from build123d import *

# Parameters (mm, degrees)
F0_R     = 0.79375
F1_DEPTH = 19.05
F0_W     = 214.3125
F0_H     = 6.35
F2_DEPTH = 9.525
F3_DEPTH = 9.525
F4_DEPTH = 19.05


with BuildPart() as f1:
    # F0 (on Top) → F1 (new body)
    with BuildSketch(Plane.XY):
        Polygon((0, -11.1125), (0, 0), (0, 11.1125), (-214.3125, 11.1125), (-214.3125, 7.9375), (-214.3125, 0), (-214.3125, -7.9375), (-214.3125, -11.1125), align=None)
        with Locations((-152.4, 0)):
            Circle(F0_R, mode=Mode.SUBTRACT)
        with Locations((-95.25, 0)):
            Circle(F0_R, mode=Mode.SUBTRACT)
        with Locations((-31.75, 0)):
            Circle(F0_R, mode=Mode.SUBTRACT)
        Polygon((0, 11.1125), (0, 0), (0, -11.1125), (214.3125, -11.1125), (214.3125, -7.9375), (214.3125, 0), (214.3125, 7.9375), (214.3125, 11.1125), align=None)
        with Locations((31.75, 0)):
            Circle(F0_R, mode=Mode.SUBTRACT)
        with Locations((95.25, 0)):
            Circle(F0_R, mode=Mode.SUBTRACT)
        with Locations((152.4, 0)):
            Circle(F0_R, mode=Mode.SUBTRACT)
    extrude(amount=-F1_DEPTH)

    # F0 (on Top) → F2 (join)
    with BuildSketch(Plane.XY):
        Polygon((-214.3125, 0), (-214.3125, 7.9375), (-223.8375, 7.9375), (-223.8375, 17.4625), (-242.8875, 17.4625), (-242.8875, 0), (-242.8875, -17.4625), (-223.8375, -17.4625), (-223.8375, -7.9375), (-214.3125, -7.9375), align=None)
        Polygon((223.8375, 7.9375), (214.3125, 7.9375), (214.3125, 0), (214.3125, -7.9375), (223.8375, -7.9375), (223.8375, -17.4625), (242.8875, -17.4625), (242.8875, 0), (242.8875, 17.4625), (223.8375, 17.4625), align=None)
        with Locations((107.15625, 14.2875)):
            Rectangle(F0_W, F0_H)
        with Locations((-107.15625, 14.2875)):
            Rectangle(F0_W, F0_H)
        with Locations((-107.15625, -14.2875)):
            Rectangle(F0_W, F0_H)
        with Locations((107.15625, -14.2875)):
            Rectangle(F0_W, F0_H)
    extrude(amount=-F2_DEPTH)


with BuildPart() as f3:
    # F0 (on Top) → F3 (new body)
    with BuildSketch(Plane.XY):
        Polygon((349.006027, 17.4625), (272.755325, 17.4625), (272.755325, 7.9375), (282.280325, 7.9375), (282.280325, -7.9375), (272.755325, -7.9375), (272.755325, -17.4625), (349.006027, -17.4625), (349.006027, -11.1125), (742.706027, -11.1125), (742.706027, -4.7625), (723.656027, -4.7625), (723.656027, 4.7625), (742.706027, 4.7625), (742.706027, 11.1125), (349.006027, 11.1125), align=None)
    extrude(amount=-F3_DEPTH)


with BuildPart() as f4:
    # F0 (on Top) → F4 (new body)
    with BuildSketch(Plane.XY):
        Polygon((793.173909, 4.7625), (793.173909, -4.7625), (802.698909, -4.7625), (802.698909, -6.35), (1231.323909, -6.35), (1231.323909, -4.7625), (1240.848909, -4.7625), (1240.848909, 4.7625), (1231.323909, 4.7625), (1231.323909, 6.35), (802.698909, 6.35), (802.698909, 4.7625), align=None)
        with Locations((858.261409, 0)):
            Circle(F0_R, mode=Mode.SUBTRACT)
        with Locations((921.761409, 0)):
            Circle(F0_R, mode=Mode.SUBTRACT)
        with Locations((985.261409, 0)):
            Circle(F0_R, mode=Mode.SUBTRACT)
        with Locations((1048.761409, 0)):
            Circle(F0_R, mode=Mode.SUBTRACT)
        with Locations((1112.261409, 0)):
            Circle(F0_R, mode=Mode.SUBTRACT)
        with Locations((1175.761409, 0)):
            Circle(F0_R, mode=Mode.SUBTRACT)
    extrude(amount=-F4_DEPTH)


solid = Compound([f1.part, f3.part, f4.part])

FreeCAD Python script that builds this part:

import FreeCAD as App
import Part
import Sketcher
Q = App.Units.Quantity

doc = App.newDocument("Part")
params = doc.addObject("Spreadsheet::Sheet", "Params")
for row, (alias, value) in enumerate([
    ("sketch1_diameter", "0.0625 in"),
    ("sketch1_width", "16.875 in"),
    ("sketch1_height", "0.875 in"),
    ("pad1_length", "0.75 in"),
    ("sketch2_width", "0.75 in"),
    ("sketch2_height", "0.25 in"),
    ("sketch2_width2", "0.375 in"),
    ("pad2_length", "0.375 in"),
    ("sketch3_width", "15.5 in"),
    ("sketch3_width2", "0.75 in"),
    ("sketch3_width3", "0.375 in"),
    ("pad3_length", "0.375 in"),
    ("sketch4_diameter", "0.0625 in"),
    ("sketch4_width", "0.375 in"),
    ("sketch4_width2", "16.875 in"),
    ("pad4_length", "0.75 in"),
], start=1):
    params.set(f"A{row}", alias)
    params.set(f"B{row}", "=" + value)
    params.setAlias(f"B{row}", alias)

body = doc.addObject("PartDesign::Body", "Body")

# Sketch on XY plane
sketch1 = body.newObject("Sketcher::SketchObject", "Sketch")
sketch1.AttachmentSupport = (doc.getObject("XY_Plane"), [""])
sketch1.MapMode = "FlatFace"
sketch1.addGeometry([
    Part.LineSegment(App.Vector(-214.3, -11.1, 0), App.Vector(214.3, -11.1, 0)),  # 0
    Part.LineSegment(App.Vector(214.3, -11.1, 0), App.Vector(214.3, 11.1, 0)),  # 1
    Part.LineSegment(App.Vector(214.3, 11.1, 0), App.Vector(-214.3, 11.1, 0)),  # 2
    Part.LineSegment(App.Vector(-214.3, 11.1, 0), App.Vector(-214.3, -11.1, 0)),  # 3
    Part.Circle(App.Vector(-152.4, 0, 0), App.Vector(0, 0, 1), 0.8),  # 4
    Part.Circle(App.Vector(-95.2, 0, 0), App.Vector(0, 0, 1), 0.8),  # 5
    Part.Circle(App.Vector(-31.8, 0, 0), App.Vector(0, 0, 1), 0.8),  # 6
    Part.Circle(App.Vector(31.8, 0, 0), App.Vector(0, 0, 1), 0.8),  # 7
    Part.Circle(App.Vector(95.2, 0, 0), App.Vector(0, 0, 1), 0.8),  # 8
    Part.Circle(App.Vector(152.4, 0, 0), App.Vector(0, 0, 1), 0.8),  # 9
], False)
sketch1.addConstraint([
    Sketcher.Constraint("Coincident", 0, 2, 1, 1),
    Sketcher.Constraint("Coincident", 1, 2, 2, 1),
    Sketcher.Constraint("Coincident", 2, 2, 3, 1),
    Sketcher.Constraint("Coincident", 3, 2, 0, 1),
    Sketcher.Constraint("Horizontal", 0),
    Sketcher.Constraint("Vertical", 1),
    Sketcher.Constraint("Horizontal", 2),
    Sketcher.Constraint("Vertical", 3),
    Sketcher.Constraint("Equal", 4, 5),
    Sketcher.Constraint("Equal", 5, 6),
    Sketcher.Constraint("Equal", 6, 7),
    Sketcher.Constraint("Equal", 7, 8),
    Sketcher.Constraint("Equal", 8, 9),
    Sketcher.Constraint("Symmetric", 6, 3, 7, 3, -1, 1),
    Sketcher.Constraint("Symmetric", 5, 3, 8, 3, -1, 1),
    Sketcher.Constraint("Symmetric", 4, 3, 9, 3, -1, 1),
    Sketcher.Constraint("Symmetric", 0, 2, 2, 2, -1, 1),
    Sketcher.Constraint("PointOnObject", 4, 3, -1),
    Sketcher.Constraint("PointOnObject", 5, 3, -1),
    Sketcher.Constraint("PointOnObject", 6, 3, -1),
    Sketcher.Constraint("Diameter", 4, Q("0.0625 in")),
    Sketcher.Constraint("DistanceX", 4, 3, -1, 1, Q("6 in")),
    Sketcher.Constraint("DistanceX", 5, 3, 7, 3, Q("5 in")),
    Sketcher.Constraint("DistanceX", 5, 3, 6, 3, Q("2.5 in")),
    Sketcher.Constraint("DistanceX", 0, 1, 0, 2, Q("16.875 in")),
    Sketcher.Constraint("DistanceY", 1, 1, 1, 2, Q("0.875 in")),
])
sketch1.setExpression("Constraints[20]", "Params.sketch1_diameter")
sketch1.setExpression("Constraints[24]", "Params.sketch1_width")
sketch1.setExpression("Constraints[25]", "Params.sketch1_height")
pad1 = body.newObject("PartDesign::Pad", "Pad")
pad1.Profile = sketch1
pad1.setExpression("Length", "Params.pad1_length")
pad1.Reversed = True

# Sketch on XY plane
sketch2 = body.newObject("Sketcher::SketchObject", "Sketch001")
sketch2.AttachmentSupport = (doc.getObject("XY_Plane"), [""])
sketch2.MapMode = "FlatFace"
sketch2.addGeometry([
    Part.LineSegment(App.Vector(-214, 8, 0), App.Vector(-224, 8, 0)),  # 0
    Part.LineSegment(App.Vector(-224, 8, 0), App.Vector(-224, 17, 0)),  # 1
    Part.LineSegment(App.Vector(-224, 17, 0), App.Vector(-243, 17, 0)),  # 2
    Part.LineSegment(App.Vector(-243, 17, 0), App.Vector(-243, -17, 0)),  # 3
    Part.LineSegment(App.Vector(-243, -17, 0), App.Vector(-224, -17, 0)),  # 4
    Part.LineSegment(App.Vector(-224, -17, 0), App.Vector(-224, -8, 0)),  # 5
    Part.LineSegment(App.Vector(-224, -8, 0), App.Vector(-214, -8, 0)),  # 6
    Part.LineSegment(App.Vector(-214, -8, 0), App.Vector(-214, 8, 0)),  # 7
    Part.LineSegment(App.Vector(224, 8, 0), App.Vector(214, 8, 0)),  # 8
    Part.LineSegment(App.Vector(214, 8, 0), App.Vector(214, -8, 0)),  # 9
    Part.LineSegment(App.Vector(214, -8, 0), App.Vector(224, -8, 0)),  # 10
    Part.LineSegment(App.Vector(224, -8, 0), App.Vector(224, -17, 0)),  # 11
    Part.LineSegment(App.Vector(224, -17, 0), App.Vector(243, -17, 0)),  # 12
    Part.LineSegment(App.Vector(243, -17, 0), App.Vector(243, 17, 0)),  # 13
    Part.LineSegment(App.Vector(243, 17, 0), App.Vector(224, 17, 0)),  # 14
    Part.LineSegment(App.Vector(224, 17, 0), App.Vector(224, 8, 0)),  # 15
    Part.LineSegment(App.Vector(214, 11, 0), App.Vector(214, 17, 0)),  # 16
    Part.LineSegment(App.Vector(214, 17, 0), App.Vector(-214, 17, 0)),  # 17
    Part.LineSegment(App.Vector(-214, 17, 0), App.Vector(-214, 11, 0)),  # 18
    Part.LineSegment(App.Vector(-214, 11, 0), App.Vector(214, 11, 0)),  # 19
    Part.LineSegment(App.Vector(-214, -11, 0), App.Vector(-214, -17, 0)),  # 20
    Part.LineSegment(App.Vector(-214, -17, 0), App.Vector(214, -17, 0)),  # 21
    Part.LineSegment(App.Vector(214, -17, 0), App.Vector(214, -11, 0)),  # 22
    Part.LineSegment(App.Vector(214, -11, 0), App.Vector(-214, -11, 0)),  # 23
], False)
sketch2.addConstraint([
    Sketcher.Constraint("Coincident", 0, 2, 1, 1),
    Sketcher.Constraint("Coincident", 1, 2, 2, 1),
    Sketcher.Constraint("Coincident", 2, 2, 3, 1),
    Sketcher.Constraint("Coincident", 3, 2, 4, 1),
    Sketcher.Constraint("Coincident", 4, 2, 5, 1),
    Sketcher.Constraint("Coincident", 5, 2, 6, 1),
    Sketcher.Constraint("Coincident", 6, 2, 7, 1),
    Sketcher.Constraint("Coincident", 7, 2, 0, 1),
    Sketcher.Constraint("Coincident", 8, 2, 9, 1),
    Sketcher.Constraint("Coincident", 9, 2, 10, 1),
    Sketcher.Constraint("Coincident", 10, 2, 11, 1),
    Sketcher.Constraint("Coincident", 11, 2, 12, 1),
    Sketcher.Constraint("Coincident", 12, 2, 13, 1),
    Sketcher.Constraint("Coincident", 13, 2, 14, 1),
    Sketcher.Constraint("Coincident", 14, 2, 15, 1),
    Sketcher.Constraint("Coincident", 15, 2, 8, 1),
    Sketcher.Constraint("Coincident", 16, 2, 17, 1),
    Sketcher.Constraint("Coincident", 17, 2, 18, 1),
    Sketcher.Constraint("Coincident", 18, 2, 19, 1),
    Sketcher.Constraint("Coincident", 19, 2, 16, 1),
    Sketcher.Constraint("Coincident", 20, 2, 21, 1),
    Sketcher.Constraint("Coincident", 21, 2, 22, 1),
    Sketcher.Constraint("Coincident", 22, 2, 23, 1),
    Sketcher.Constraint("Coincident", 23, 2, 20, 1),
    Sketcher.Constraint("Horizontal", 0),
    Sketcher.Constraint("Vertical", 1),
    Sketcher.Constraint("Horizontal", 2),
    Sketcher.Constraint("Vertical", 3),
    Sketcher.Constraint("Horizontal", 4),
    Sketcher.Constraint("Vertical", 5),
    Sketcher.Constraint("Horizontal", 6),
    Sketcher.Constraint("Vertical", 7),
    Sketcher.Constraint("Horizontal", 8),
    Sketcher.Constraint("Vertical", 9),
    Sketcher.Constraint("Horizontal", 10),
    Sketcher.Constraint("Vertical", 11),
    Sketcher.Constraint("Horizontal", 12),
    Sketcher.Constraint("Vertical", 13),
    Sketcher.Constraint("Horizontal", 14),
    Sketcher.Constraint("Vertical", 15),
    Sketcher.Constraint("Vertical", 16),
    Sketcher.Constraint("Horizontal", 17),
    Sketcher.Constraint("Vertical", 18),
    Sketcher.Constraint("Horizontal", 19),
    Sketcher.Constraint("Vertical", 20),
    Sketcher.Constraint("Horizontal", 21),
    Sketcher.Constraint("Vertical", 22),
    Sketcher.Constraint("Horizontal", 23),
    Sketcher.Constraint("Symmetric", 6, 2, 8, 2, -1, 1),
    Sketcher.Constraint("Symmetric", 0, 2, 10, 2, -1, 1),
    Sketcher.Constraint("Symmetric", 2, 2, 12, 2, -1, 1),
    Sketcher.Constraint("Symmetric", 4, 2, 14, 2, -1, 1),
    Sketcher.Constraint("Symmetric", 16, 2, 20, 2, -1, 1),
    Sketcher.Constraint("Symmetric", 18, 2, 22, 2, -1, 1),
    Sketcher.Constraint("Symmetric", 5, 2, 10, 2, -2),
    Sketcher.Constraint("Horizontal", 4, 2, 11, 2),
    Sketcher.Constraint("Horizontal", 14, 2, 16, 2),
    Sketcher.Constraint("Vertical", 9, 2, 16, 2),
    Sketcher.Constraint("Vertical", 7, 2, 17, 2),
    Sketcher.Constraint("Equal", 10, 1),
    Sketcher.Constraint("DistanceY", 3, 2, 0, 2, Q("1 in")),
    Sketcher.Constraint("DistanceX", 6, 2, 12, 2, Q("18 in")),
    Sketcher.Constraint("DistanceX", 2, 2, 2, 1, Q("0.75 in")),
    Sketcher.Constraint("DistanceY", 16, 1, 16, 2, Q("0.25 in")),
    Sketcher.Constraint("DistanceX", 0, 2, 0, 1, Q("0.375 in")),
])
sketch2.setExpression("Constraints[62]", "Params.sketch2_width")
sketch2.setExpression("Constraints[63]", "Params.sketch2_height")
sketch2.setExpression("Constraints[64]", "Params.sketch2_width2")
pad2 = body.newObject("PartDesign::Pad", "Pad001")
pad2.Profile = sketch2
pad2.setExpression("Length", "Params.pad2_length")
pad2.Reversed = True
body2 = doc.addObject("PartDesign::Body", "Body001")

# Sketch on XY plane
sketch3 = body2.newObject("Sketcher::SketchObject", "Sketch002")
sketch3.AttachmentSupport = (doc.getObject("XY_Plane001"), [""])
sketch3.MapMode = "FlatFace"
sketch3.addGeometry([
    Part.LineSegment(App.Vector(349, 17, 0), App.Vector(273, 17, 0)),  # 0
    Part.LineSegment(App.Vector(273, 17, 0), App.Vector(273, 8, 0)),  # 1
    Part.LineSegment(App.Vector(273, 8, 0), App.Vector(282, 8, 0)),  # 2
    Part.LineSegment(App.Vector(282, 8, 0), App.Vector(282, -8, 0)),  # 3
    Part.LineSegment(App.Vector(282, -8, 0), App.Vector(273, -8, 0)),  # 4
    Part.LineSegment(App.Vector(273, -8, 0), App.Vector(273, -17, 0)),  # 5
    Part.LineSegment(App.Vector(273, -17, 0), App.Vector(349, -17, 0)),  # 6
    Part.LineSegment(App.Vector(349, -17, 0), App.Vector(349, -11, 0)),  # 7
    Part.LineSegment(App.Vector(349, -11, 0), App.Vector(743, -11, 0)),  # 8
    Part.LineSegment(App.Vector(743, -11, 0), App.Vector(743, -5, 0)),  # 9
    Part.LineSegment(App.Vector(743, -5, 0), App.Vector(724, -5, 0)),  # 10
    Part.LineSegment(App.Vector(724, -5, 0), App.Vector(724, 5, 0)),  # 11
    Part.LineSegment(App.Vector(724, 5, 0), App.Vector(743, 5, 0)),  # 12
    Part.LineSegment(App.Vector(743, 5, 0), App.Vector(743, 11, 0)),  # 13
    Part.LineSegment(App.Vector(743, 11, 0), App.Vector(349, 11, 0)),  # 14
    Part.LineSegment(App.Vector(349, 11, 0), App.Vector(349, 17, 0)),  # 15
], False)
sketch3.addConstraint([
    Sketcher.Constraint("Coincident", 0, 2, 1, 1),
    Sketcher.Constraint("Coincident", 1, 2, 2, 1),
    Sketcher.Constraint("Coincident", 2, 2, 3, 1),
    Sketcher.Constraint("Coincident", 3, 2, 4, 1),
    Sketcher.Constraint("Coincident", 4, 2, 5, 1),
    Sketcher.Constraint("Coincident", 5, 2, 6, 1),
    Sketcher.Constraint("Coincident", 6, 2, 7, 1),
    Sketcher.Constraint("Coincident", 7, 2, 8, 1),
    Sketcher.Constraint("Coincident", 8, 2, 9, 1),
    Sketcher.Constraint("Coincident", 9, 2, 10, 1),
    Sketcher.Constraint("Coincident", 10, 2, 11, 1),
    Sketcher.Constraint("Coincident", 11, 2, 12, 1),
    Sketcher.Constraint("Coincident", 12, 2, 13, 1),
    Sketcher.Constraint("Coincident", 13, 2, 14, 1),
    Sketcher.Constraint("Coincident", 14, 2, 15, 1),
    Sketcher.Constraint("Coincident", 15, 2, 0, 1),
    Sketcher.Constraint("Horizontal", 0),
    Sketcher.Constraint("Vertical", 1),
    Sketcher.Constraint("Horizontal", 2),
    Sketcher.Constraint("Vertical", 3),
    Sketcher.Constraint("Horizontal", 4),
    Sketcher.Constraint("Vertical", 5),
    Sketcher.Constraint("Horizontal", 6),
    Sketcher.Constraint("Vertical", 7),
    Sketcher.Constraint("Horizontal", 8),
    Sketcher.Constraint("Vertical", 9),
    Sketcher.Constraint("Horizontal", 10),
    Sketcher.Constraint("Vertical", 11),
    Sketcher.Constraint("Horizontal", 12),
    Sketcher.Constraint("Vertical", 13),
    Sketcher.Constraint("Horizontal", 14),
    Sketcher.Constraint("Vertical", 15),
    Sketcher.Constraint("Symmetric", 1, 2, 4, 2, -1),
    Sketcher.Constraint("Symmetric", 9, 2, 12, 2, -1),
    Sketcher.Constraint("Symmetric", 7, 2, 14, 2, -1),
    Sketcher.Constraint("Equal", 4, 1),
    Sketcher.Constraint("Equal", 1, 5),
    Sketcher.Constraint("Equal", 7, 9),
    Sketcher.Constraint("Equal", 5, 11),
    Sketcher.Constraint("DistanceX", 8, 1, 8, 2, Q("15.5 in")),
    Sketcher.Constraint("DistanceY", 3, 2, 0, 2, Q("1 in")),
    Sketcher.Constraint("DistanceX", 10, 2, 10, 1, Q("0.75 in")),
    Sketcher.Constraint("DistanceX", 2, 1, 2, 2, Q("0.375 in")),
    Sketcher.Constraint("DistanceX", 0, 2, 0, 1, Q("76.250702 mm")),
    Sketcher.Constraint("DistanceX", -1, 1, 0, 2, Q("272.755325 mm")),
])
sketch3.setExpression("Constraints[39]", "Params.sketch3_width")
sketch3.setExpression("Constraints[41]", "Params.sketch3_width2")
sketch3.setExpression("Constraints[42]", "Params.sketch3_width3")
pad3 = body2.newObject("PartDesign::Pad", "Pad002")
pad3.Profile = sketch3
pad3.setExpression("Length", "Params.pad3_length")
pad3.Reversed = True
body3 = doc.addObject("PartDesign::Body", "Body002")

# Sketch on XY plane
sketch4 = body3.newObject("Sketcher::SketchObject", "Sketch003")
sketch4.AttachmentSupport = (doc.getObject("XY_Plane002"), [""])
sketch4.MapMode = "FlatFace"
sketch4.addGeometry([
    Part.LineSegment(App.Vector(793.2, 4.8, 0), App.Vector(793.2, -4.8, 0)),  # 0
    Part.LineSegment(App.Vector(793.2, -4.8, 0), App.Vector(802.7, -4.8, 0)),  # 1
    Part.LineSegment(App.Vector(802.7, -4.8, 0), App.Vector(802.7, -6.3, 0)),  # 2
    Part.LineSegment(App.Vector(802.7, -6.3, 0), App.Vector(1231.3, -6.3, 0)),  # 3
    Part.LineSegment(App.Vector(1231.3, -6.3, 0), App.Vector(1231.3, -4.8, 0)),  # 4
    Part.LineSegment(App.Vector(1231.3, -4.8, 0), App.Vector(1240.8, -4.8, 0)),  # 5
    Part.LineSegment(App.Vector(1240.8, -4.8, 0), App.Vector(1240.8, 4.8, 0)),  # 6
    Part.LineSegment(App.Vector(1240.8, 4.8, 0), App.Vector(1231.3, 4.8, 0)),  # 7
    Part.LineSegment(App.Vector(1231.3, 4.8, 0), App.Vector(1231.3, 6.3, 0)),  # 8
    Part.LineSegment(App.Vector(1231.3, 6.3, 0), App.Vector(802.7, 6.3, 0)),  # 9
    Part.LineSegment(App.Vector(802.7, 6.3, 0), App.Vector(802.7, 4.8, 0)),  # 10
    Part.LineSegment(App.Vector(802.7, 4.8, 0), App.Vector(793.2, 4.8, 0)),  # 11
    Part.Circle(App.Vector(858.3, 0, 0), App.Vector(0, 0, 1), 0.8),  # 12
    Part.Circle(App.Vector(921.8, 0, 0), App.Vector(0, 0, 1), 0.8),  # 13
    Part.Circle(App.Vector(985.3, 0, 0), App.Vector(0, 0, 1), 0.8),  # 14
    Part.Circle(App.Vector(1048.8, 0, 0), App.Vector(0, 0, 1), 0.8),  # 15
    Part.Circle(App.Vector(1112.3, 0, 0), App.Vector(0, 0, 1), 0.8),  # 16
    Part.Circle(App.Vector(1175.8, 0, 0), App.Vector(0, 0, 1), 0.8),  # 17
], False)
sketch4.addConstraint([
    Sketcher.Constraint("Coincident", 0, 2, 1, 1),
    Sketcher.Constraint("Coincident", 1, 2, 2, 1),
    Sketcher.Constraint("Coincident", 2, 2, 3, 1),
    Sketcher.Constraint("Coincident", 3, 2, 4, 1),
    Sketcher.Constraint("Coincident", 4, 2, 5, 1),
    Sketcher.Constraint("Coincident", 5, 2, 6, 1),
    Sketcher.Constraint("Coincident", 6, 2, 7, 1),
    Sketcher.Constraint("Coincident", 7, 2, 8, 1),
    Sketcher.Constraint("Coincident", 8, 2, 9, 1),
    Sketcher.Constraint("Coincident", 9, 2, 10, 1),
    Sketcher.Constraint("Coincident", 10, 2, 11, 1),
    Sketcher.Constraint("Coincident", 11, 2, 0, 1),
    Sketcher.Constraint("Vertical", 0),
    Sketcher.Constraint("Horizontal", 1),
    Sketcher.Constraint("Vertical", 2),
    Sketcher.Constraint("Horizontal", 3),
    Sketcher.Constraint("Vertical", 4),
    Sketcher.Constraint("Horizontal", 5),
    Sketcher.Constraint("Vertical", 6),
    Sketcher.Constraint("Horizontal", 7),
    Sketcher.Constraint("Vertical", 8),
    Sketcher.Constraint("Horizontal", 9),
    Sketcher.Constraint("Vertical", 10),
    Sketcher.Constraint("Horizontal", 11),
    Sketcher.Constraint("Equal", 12, 13),
    Sketcher.Constraint("Equal", 13, 14),
    Sketcher.Constraint("Equal", 14, 15),
    Sketcher.Constraint("Equal", 15, 16),
    Sketcher.Constraint("Equal", 16, 17),
    Sketcher.Constraint("Symmetric", 4, 2, 7, 2, -1),
    Sketcher.Constraint("Symmetric", 2, 2, 9, 2, -1),
    Sketcher.Constraint("PointOnObject", 12, 3, -1),
    Sketcher.Constraint("PointOnObject", 13, 3, -1),
    Sketcher.Constraint("PointOnObject", 14, 3, -1),
    Sketcher.Constraint("PointOnObject", 15, 3, -1),
    Sketcher.Constraint("PointOnObject", 16, 3, -1),
    Sketcher.Constraint("PointOnObject", 17, 3, -1),
    Sketcher.Constraint("Horizontal", 1, 2, 4, 2),
    Sketcher.Constraint("Horizontal", 7, 2, 10, 2),
    Sketcher.Constraint("Equal", 1, 5),
    Sketcher.Constraint("Equal", 11, 0),
    Sketcher.Constraint("Diameter", 12, Q("0.0625 in")),
    Sketcher.Constraint("DistanceX", 12, 3, 14, 3, Q("5 in")),
    Sketcher.Constraint("DistanceX", 13, 3, 15, 3, Q("5 in")),
    Sketcher.Constraint("DistanceX", 14, 3, 16, 3, Q("5 in")),
    Sketcher.Constraint("DistanceX", 15, 3, 17, 3, Q("5 in")),
    Sketcher.Constraint("DistanceX", 12, 3, 13, 3, Q("2.5 in")),
    Sketcher.Constraint("DistanceY", 3, 2, 8, 2, Q("0.5 in")),
    Sketcher.Constraint("DistanceX", 1, 1, 1, 2, Q("0.375 in")),
    Sketcher.Constraint("DistanceX", 3, 1, 3, 2, Q("16.875 in")),
    Sketcher.Constraint("DistanceX", 0, 2, 12, 3, Q("2.5625 in")),
    Sketcher.Constraint("DistanceX", -1, 1, 12, 3, Q("858.261409 mm")),
])
sketch4.setExpression("Constraints[41]", "Params.sketch4_diameter")
sketch4.setExpression("Constraints[48]", "Params.sketch4_width")
sketch4.setExpression("Constraints[49]", "Params.sketch4_width2")
pad4 = body3.newObject("PartDesign::Pad", "Pad003")
pad4.Profile = sketch4
pad4.setExpression("Length", "Params.pad4_length")
pad4.Reversed = True

doc.recompute()
